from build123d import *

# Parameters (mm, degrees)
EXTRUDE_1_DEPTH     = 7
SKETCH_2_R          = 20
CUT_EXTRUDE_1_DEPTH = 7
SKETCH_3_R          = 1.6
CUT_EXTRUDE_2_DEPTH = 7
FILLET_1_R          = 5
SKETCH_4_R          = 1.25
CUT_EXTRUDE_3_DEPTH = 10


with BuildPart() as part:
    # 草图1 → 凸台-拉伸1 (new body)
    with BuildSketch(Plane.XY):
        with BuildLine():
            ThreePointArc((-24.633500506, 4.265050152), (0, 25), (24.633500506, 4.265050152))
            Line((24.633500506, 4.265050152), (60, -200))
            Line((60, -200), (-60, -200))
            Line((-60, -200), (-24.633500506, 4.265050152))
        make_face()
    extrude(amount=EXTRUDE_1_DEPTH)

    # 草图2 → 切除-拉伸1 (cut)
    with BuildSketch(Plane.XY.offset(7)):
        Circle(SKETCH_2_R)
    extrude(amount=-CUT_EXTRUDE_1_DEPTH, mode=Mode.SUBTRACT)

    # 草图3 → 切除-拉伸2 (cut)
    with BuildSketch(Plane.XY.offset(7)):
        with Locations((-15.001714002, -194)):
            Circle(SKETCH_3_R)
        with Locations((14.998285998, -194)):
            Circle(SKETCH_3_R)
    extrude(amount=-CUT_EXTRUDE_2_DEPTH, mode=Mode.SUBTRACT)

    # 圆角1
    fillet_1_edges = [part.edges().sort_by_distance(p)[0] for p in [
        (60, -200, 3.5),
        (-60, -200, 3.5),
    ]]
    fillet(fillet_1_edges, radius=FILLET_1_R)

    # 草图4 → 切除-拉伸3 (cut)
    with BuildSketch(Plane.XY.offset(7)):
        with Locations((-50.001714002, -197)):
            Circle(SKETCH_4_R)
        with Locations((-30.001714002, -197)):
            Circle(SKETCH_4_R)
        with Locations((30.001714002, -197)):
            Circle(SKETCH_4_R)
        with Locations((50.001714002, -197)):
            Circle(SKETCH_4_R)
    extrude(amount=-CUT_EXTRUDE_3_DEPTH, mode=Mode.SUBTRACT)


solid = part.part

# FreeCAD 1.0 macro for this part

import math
import FreeCAD as App
import Part
import Sketcher
Q = App.Units.Quantity


def edges_at(feature, points):
    """Names of the edges that pass closest to the given points."""
    edges = feature.Shape.Edges
    near = lambda p: min(range(len(edges)), key=lambda i: edges[i].distToShape(Part.Vertex(*p))[0])
    return sorted({f"Edge{near(p) + 1}" for p in points})

doc = App.newDocument("Part")
body = doc.addObject("PartDesign::Body", "Body")

sketch1 = body.newObject("Sketcher::SketchObject", "Sketch")
sketch1.AttachmentSupport = (doc.getObject("XY_Plane"), [""])
sketch1.MapMode = "FlatFace"
sketch1.addGeometry([
    Part.ArcOfCircle(Part.Circle(App.Vector(0, 0, 0), App.Vector(0, 0, 1), 25), math.radians(10), math.radians(170)),
    Part.LineSegment(App.Vector(-25, 4, 0), App.Vector(-60, -200, 0)),
    Part.LineSegment(App.Vector(-60, -200, 0), App.Vector(60, -200, 0)),
    Part.LineSegment(App.Vector(60, -200, 0), App.Vector(25, 4, 0)),
], False)
sketch1.addConstraint([
    Sketcher.Constraint("Tangent", 0, 2, 1, 1),
    Sketcher.Constraint("Coincident", 1, 2, 2, 1),
    Sketcher.Constraint("Coincident", 2, 2, 3, 1),
    Sketcher.Constraint("Tangent", 3, 2, 0, 1),
    Sketcher.Constraint("Horizontal", 2),
    Sketcher.Constraint("Coincident", 0, 3, -1, 1),
    Sketcher.Constraint("Horizontal", 0, 2, 3, 2),
    Sketcher.Constraint("Radius", 0, Q("25 mm")),
    Sketcher.Constraint("DistanceX", 2, 1, 2, 2, Q("120 mm")),
    Sketcher.Constraint("DistanceY", 1, 2, -1, 1, Q("200 mm")),
])
pad1 = body.newObject("PartDesign::Pad", "Pad")
pad1.Profile = sketch1
pad1.Length = 7

sketch2 = body.newObject("Sketcher::SketchObject", "Sketch001")
sketch2.AttachmentSupport = (doc.getObject("XY_Plane"), [""])
sketch2.MapMode = "FlatFace"
sketch2.AttachmentOffset = App.Placement(App.Vector(0, 0, 7), App.Rotation())
sketch2.addGeometry(Part.Circle(App.Vector(0, 0, 0), App.Vector(0, 0, 1), 20), False)
sketch2.addConstraint([
    Sketcher.Constraint("Coincident", 0, 3, -1, 1),
    Sketcher.Constraint("Diameter", 0, Q("40 mm")),
])
pocket1 = body.newObject("PartDesign::Pocket", "Pocket")
pocket1.Profile = sketch2
pocket1.Length = 7

sketch3 = body.newObject("Sketcher::SketchObject", "Sketch002")
sketch3.AttachmentSupport = (doc.getObject("XY_Plane"), [""])
sketch3.MapMode = "FlatFace"
sketch3.AttachmentOffset = App.Placement(App.Vector(0, 0, 7), App.Rotation())
sketch3.addGeometry([
    Part.Circle(App.Vector(-15, -194, 0), App.Vector(0, 0, 1), 1.6),
    Part.Circle(App.Vector(15, -194, 0), App.Vector(0, 0, 1), 1.6),
], False)
sketch3.addConstraint([
    Sketcher.Constraint("Equal", 0, 1),
    Sketcher.Constraint("Horizontal", 0, 3, 1, 3),
    Sketcher.Constraint("Diameter", 0, Q("3.2 mm")),
    Sketcher.Constraint("DistanceY", 0, 3, -1, 1, Q("194 mm")),
    Sketcher.Constraint("DistanceX", 0, 3, 1, 3, Q("30 mm")),
    Sketcher.Constraint("DistanceX", 0, 3, -1, 1, Q("15.001714 mm")),
])
pocket2 = body.newObject("PartDesign::Pocket", "Pocket001")
pocket2.Profile = sketch3
pocket2.Length = 7
doc.recompute()

fillet = body.newObject("PartDesign::Fillet", "Fillet")
fillet.Base = (pocket2, edges_at(pocket2, [(60, -200, 3.5), (-60, -200, 3.5)]))
fillet.Radius = 5

sketch4 = body.newObject("Sketcher::SketchObject", "Sketch003")
sketch4.AttachmentSupport = (doc.getObject("XY_Plane"), [""])
sketch4.MapMode = "FlatFace"
sketch4.AttachmentOffset = App.Placement(App.Vector(0, 0, 7), App.Rotation())
sketch4.addGeometry([
    Part.Circle(App.Vector(-50, -197, 0), App.Vector(0, 0, 1), 1.2),
    Part.Circle(App.Vector(-30, -197, 0), App.Vector(0, 0, 1), 1.2),
    Part.Circle(App.Vector(30, -197, 0), App.Vector(0, 0, 1), 1.2),
    Part.Circle(App.Vector(50, -197, 0), App.Vector(0, 0, 1), 1.2),
], False)
sketch4.addConstraint([
    Sketcher.Constraint("Equal", 0, 1),
    Sketcher.Constraint("Equal", 1, 2),
    Sketcher.Constraint("Equal", 2, 3),
    Sketcher.Constraint("Symmetric", 1, 3, 2, 3, -2),
    Sketcher.Constraint("Symmetric", 0, 3, 3, 3, -2),
    Sketcher.Constraint("Horizontal", 0, 3, 1, 3),
    Sketcher.Constraint("Diameter", 0, Q("2.5 mm")),
    Sketcher.Constraint("DistanceY", 0, 3, -1, 1, Q("197 mm")),
    Sketcher.Constraint("DistanceX", 0, 3, 1, 3, Q("20 mm")),
    Sketcher.Constraint("DistanceX", 1, 3, 2, 3, Q("60.003428 mm")),
])
pocket3 = body.newObject("PartDesign::Pocket", "Pocket002")
pocket3.Profile = sketch4
pocket3.Length = 10

doc.recompute()
